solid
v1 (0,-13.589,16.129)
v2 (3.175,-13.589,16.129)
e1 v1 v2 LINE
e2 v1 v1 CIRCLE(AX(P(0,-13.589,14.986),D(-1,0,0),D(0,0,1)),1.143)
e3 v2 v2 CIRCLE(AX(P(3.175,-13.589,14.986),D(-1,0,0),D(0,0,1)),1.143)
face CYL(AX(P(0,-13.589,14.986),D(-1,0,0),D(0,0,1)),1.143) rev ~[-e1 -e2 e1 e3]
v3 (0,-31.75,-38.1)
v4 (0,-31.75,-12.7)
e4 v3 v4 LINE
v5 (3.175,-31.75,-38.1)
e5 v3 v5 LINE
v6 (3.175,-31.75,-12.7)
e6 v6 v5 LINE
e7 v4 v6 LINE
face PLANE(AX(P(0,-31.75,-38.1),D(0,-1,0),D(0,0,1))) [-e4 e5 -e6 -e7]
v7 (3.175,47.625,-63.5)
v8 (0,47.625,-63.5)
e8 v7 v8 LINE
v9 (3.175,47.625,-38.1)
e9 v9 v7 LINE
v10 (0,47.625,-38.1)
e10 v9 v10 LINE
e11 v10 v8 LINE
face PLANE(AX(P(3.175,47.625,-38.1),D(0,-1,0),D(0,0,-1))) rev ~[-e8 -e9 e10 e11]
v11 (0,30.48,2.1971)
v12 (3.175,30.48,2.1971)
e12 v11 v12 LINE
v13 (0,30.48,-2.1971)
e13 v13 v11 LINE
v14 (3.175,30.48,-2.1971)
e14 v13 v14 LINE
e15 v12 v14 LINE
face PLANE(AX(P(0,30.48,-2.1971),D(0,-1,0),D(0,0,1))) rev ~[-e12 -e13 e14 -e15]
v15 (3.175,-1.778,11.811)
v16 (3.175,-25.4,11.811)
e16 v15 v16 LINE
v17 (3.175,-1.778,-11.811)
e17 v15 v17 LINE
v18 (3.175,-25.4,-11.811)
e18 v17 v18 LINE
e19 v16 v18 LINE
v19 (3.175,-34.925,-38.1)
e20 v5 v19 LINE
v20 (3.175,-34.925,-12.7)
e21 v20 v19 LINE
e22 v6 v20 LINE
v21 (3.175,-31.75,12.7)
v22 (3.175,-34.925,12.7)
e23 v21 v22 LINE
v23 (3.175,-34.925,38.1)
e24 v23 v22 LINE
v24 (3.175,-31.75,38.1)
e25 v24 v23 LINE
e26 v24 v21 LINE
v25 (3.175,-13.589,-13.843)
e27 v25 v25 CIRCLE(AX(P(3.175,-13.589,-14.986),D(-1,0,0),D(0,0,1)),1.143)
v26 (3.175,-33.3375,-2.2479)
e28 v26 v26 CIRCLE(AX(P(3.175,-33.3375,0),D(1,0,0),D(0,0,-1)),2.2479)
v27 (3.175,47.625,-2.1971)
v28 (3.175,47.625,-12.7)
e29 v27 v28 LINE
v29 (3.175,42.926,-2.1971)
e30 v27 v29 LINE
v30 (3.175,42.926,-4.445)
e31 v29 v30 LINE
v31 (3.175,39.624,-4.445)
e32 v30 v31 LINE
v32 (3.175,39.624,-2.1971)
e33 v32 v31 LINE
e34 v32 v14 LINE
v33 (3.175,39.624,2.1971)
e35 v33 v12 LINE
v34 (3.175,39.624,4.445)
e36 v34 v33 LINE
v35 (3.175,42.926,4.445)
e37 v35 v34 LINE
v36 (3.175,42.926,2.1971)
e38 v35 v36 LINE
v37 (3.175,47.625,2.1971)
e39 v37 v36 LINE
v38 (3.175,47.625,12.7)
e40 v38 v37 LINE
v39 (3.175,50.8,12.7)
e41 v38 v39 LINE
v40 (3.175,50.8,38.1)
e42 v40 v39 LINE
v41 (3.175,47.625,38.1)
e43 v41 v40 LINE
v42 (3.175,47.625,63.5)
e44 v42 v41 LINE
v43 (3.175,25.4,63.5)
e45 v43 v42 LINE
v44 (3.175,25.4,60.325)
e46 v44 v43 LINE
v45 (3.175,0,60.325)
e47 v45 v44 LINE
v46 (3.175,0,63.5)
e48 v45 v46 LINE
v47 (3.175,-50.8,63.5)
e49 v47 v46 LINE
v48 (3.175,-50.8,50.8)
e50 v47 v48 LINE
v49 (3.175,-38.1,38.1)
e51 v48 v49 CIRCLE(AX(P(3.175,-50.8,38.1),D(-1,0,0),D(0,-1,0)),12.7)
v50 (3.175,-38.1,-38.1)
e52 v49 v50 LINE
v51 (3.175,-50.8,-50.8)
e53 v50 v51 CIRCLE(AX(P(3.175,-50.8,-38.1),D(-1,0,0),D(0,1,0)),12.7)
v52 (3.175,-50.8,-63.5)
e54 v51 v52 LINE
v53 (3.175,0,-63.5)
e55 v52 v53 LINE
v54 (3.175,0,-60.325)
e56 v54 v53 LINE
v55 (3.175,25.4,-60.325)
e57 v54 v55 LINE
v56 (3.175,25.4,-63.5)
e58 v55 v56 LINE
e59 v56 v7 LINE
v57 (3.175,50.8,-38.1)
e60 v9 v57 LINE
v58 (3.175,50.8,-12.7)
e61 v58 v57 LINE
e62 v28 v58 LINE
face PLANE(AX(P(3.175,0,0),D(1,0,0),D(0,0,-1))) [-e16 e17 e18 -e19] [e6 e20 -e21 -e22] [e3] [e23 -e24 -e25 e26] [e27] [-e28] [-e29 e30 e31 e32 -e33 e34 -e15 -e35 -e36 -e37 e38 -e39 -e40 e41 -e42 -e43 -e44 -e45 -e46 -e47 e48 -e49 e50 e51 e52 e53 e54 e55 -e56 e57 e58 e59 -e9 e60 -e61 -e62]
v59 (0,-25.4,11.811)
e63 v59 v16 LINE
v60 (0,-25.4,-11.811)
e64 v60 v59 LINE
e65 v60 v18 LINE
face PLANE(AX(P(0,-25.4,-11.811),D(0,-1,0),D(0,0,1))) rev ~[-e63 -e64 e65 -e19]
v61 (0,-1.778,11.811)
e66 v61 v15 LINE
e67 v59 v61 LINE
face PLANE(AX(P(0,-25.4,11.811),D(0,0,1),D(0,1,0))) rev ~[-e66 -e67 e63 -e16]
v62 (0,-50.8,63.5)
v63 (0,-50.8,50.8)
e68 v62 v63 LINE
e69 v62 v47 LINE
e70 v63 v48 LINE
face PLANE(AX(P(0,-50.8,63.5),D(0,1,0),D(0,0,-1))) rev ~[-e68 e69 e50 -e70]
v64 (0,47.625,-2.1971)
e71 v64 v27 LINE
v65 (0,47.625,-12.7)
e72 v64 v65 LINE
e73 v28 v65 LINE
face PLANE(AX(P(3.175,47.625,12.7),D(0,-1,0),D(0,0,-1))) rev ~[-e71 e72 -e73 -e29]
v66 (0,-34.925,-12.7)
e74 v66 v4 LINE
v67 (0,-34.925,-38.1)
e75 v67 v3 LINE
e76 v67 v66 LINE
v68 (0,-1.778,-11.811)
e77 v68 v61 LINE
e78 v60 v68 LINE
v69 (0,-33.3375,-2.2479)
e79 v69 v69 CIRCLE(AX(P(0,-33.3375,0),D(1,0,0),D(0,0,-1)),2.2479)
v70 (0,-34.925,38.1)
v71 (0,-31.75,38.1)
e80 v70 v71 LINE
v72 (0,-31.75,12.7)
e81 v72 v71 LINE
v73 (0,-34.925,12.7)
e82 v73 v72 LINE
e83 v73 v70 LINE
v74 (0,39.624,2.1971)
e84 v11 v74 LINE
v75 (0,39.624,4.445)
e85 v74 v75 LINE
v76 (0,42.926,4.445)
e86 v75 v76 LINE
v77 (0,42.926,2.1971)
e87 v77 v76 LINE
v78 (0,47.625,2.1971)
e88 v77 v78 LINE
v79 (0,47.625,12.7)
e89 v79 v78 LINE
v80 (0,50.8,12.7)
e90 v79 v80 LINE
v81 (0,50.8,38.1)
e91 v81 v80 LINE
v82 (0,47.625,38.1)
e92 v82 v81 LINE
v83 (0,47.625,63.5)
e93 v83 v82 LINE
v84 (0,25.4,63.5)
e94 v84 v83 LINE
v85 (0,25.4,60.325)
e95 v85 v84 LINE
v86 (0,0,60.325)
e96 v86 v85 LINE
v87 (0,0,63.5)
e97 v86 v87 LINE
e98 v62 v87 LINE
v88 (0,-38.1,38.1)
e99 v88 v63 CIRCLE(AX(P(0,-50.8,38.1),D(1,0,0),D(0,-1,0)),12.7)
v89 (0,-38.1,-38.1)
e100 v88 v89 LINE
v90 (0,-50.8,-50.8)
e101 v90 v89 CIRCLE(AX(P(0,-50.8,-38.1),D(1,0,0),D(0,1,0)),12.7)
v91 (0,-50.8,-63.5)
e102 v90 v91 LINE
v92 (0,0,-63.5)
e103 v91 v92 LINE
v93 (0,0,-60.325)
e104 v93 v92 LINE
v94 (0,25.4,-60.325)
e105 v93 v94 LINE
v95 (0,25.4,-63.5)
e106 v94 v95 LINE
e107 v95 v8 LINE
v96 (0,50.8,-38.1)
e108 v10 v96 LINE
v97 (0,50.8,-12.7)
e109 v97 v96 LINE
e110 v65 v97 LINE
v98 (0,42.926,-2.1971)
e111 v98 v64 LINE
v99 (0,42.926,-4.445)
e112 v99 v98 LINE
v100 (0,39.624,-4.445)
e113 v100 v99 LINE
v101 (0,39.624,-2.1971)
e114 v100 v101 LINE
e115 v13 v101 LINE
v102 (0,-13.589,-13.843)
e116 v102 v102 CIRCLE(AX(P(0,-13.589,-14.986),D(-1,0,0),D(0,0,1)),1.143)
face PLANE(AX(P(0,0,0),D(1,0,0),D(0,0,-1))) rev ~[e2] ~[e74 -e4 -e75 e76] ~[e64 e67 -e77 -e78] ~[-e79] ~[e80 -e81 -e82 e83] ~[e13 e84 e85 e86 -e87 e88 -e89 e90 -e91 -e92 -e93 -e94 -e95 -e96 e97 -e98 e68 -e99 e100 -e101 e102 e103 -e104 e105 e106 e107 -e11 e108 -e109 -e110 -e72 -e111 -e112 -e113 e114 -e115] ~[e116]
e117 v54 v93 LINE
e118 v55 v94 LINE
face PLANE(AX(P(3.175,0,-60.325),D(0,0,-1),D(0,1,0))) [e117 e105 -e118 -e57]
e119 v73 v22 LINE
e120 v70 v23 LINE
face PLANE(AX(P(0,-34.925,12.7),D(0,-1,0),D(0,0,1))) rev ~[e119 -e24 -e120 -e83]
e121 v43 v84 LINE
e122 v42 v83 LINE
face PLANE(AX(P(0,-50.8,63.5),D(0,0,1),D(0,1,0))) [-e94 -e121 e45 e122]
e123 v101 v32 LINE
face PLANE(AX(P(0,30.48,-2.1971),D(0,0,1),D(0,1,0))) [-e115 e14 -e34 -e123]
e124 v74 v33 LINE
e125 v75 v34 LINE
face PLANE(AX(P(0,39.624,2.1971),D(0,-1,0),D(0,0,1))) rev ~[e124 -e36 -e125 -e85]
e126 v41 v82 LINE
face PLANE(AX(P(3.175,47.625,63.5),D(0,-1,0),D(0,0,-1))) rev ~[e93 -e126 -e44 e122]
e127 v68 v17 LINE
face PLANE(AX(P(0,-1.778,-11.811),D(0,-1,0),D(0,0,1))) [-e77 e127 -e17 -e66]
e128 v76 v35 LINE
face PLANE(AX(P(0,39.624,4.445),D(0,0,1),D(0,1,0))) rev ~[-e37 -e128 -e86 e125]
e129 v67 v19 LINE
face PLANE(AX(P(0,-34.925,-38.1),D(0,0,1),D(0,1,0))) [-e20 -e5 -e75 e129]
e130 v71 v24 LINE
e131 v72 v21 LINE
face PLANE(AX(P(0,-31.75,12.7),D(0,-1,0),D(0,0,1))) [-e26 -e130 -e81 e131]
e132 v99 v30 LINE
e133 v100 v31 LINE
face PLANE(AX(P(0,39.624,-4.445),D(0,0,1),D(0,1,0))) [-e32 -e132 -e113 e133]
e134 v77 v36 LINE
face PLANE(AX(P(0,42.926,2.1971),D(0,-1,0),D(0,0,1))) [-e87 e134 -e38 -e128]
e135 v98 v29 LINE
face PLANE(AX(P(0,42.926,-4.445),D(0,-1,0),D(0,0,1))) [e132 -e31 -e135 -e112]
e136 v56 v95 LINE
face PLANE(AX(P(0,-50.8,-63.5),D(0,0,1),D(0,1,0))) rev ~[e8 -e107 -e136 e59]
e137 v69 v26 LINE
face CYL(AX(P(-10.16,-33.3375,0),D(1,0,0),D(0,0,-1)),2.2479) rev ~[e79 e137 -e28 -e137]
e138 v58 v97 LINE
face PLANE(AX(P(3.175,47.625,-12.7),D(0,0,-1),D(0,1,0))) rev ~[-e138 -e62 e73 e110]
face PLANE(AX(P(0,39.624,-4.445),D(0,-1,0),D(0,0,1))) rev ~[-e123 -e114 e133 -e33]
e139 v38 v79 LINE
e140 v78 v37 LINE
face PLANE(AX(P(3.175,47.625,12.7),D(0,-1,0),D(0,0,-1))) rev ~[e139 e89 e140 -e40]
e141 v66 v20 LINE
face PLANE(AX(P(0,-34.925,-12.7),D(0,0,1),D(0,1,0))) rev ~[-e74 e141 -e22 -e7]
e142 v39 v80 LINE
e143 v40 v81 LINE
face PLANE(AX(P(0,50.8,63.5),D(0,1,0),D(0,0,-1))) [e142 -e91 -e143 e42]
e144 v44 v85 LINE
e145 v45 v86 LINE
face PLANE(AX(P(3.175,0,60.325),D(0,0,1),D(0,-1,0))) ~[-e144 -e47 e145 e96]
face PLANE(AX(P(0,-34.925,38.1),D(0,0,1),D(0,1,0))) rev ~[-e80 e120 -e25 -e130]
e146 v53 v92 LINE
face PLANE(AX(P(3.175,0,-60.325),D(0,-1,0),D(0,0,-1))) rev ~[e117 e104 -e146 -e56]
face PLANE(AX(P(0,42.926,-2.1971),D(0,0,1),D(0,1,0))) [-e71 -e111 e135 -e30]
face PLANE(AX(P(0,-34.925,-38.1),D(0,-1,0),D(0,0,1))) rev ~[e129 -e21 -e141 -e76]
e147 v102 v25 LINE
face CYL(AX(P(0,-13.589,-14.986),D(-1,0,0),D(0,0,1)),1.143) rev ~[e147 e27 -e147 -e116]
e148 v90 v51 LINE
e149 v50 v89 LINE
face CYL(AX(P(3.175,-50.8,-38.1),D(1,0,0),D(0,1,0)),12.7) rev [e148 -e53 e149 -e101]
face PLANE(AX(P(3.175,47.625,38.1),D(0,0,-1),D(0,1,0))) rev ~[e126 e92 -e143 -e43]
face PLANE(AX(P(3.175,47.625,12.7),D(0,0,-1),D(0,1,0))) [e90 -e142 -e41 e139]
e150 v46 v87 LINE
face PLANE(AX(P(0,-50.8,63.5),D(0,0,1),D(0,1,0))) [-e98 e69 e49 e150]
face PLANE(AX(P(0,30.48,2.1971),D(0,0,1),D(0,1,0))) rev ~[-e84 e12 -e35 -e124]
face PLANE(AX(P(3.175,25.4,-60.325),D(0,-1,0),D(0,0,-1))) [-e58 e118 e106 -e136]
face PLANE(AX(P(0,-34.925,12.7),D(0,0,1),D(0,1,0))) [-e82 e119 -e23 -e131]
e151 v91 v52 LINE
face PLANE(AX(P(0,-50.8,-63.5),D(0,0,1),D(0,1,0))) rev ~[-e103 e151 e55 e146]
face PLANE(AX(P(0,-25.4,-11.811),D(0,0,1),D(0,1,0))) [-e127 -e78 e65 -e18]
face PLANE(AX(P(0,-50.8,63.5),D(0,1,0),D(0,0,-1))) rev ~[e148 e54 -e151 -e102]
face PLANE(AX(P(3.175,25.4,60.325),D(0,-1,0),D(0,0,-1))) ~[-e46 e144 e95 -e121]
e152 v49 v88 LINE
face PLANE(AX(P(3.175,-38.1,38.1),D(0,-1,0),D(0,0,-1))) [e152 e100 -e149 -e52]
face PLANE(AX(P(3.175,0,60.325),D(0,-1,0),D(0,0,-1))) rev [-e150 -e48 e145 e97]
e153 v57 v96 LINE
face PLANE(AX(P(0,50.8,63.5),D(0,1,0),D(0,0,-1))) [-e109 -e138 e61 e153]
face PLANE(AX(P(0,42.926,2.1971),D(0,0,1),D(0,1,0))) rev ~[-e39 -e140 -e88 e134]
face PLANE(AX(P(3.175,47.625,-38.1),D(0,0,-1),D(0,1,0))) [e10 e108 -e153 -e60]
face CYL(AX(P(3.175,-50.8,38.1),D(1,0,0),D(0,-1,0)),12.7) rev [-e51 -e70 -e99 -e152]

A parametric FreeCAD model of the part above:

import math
import FreeCAD as App
import Part
import Sketcher

V = App.Vector
Q = App.Units.Quantity


def add_polygon(sketch, points):
    """Adds a closed chain of lines whose ends are joined by coincident constraints."""
    first, n = sketch.GeometryCount, len(points)
    for a, b in zip(points, points[1:] + points[:1]):
        sketch.addGeometry(Part.LineSegment(App.Vector(*a, 0), App.Vector(*b, 0)), False)
    for i in range(n):
        sketch.addConstraint(Sketcher.Constraint("Coincident", first + i, 2, first + (i + 1) % n, 1))

doc = App.newDocument("Part")
body = doc.addObject("PartDesign::Body", "Body")

# Sketch on YZ plane
sketch1 = doc.addObject("Sketcher::SketchObject", "Sketch")
body.addObject(sketch1)
sketch1.AttachmentSupport = (doc.YZ_Plane, [""])
sketch1.MapMode = "FlatFace"
add_polygon(sketch1, [(51, 64), (-51, 64), (-51, -64), (51, -64)])  # lines 0-3
sketch1.addConstraint(Sketcher.Constraint("Horizontal", 0))
sketch1.addConstraint(Sketcher.Constraint("Vertical", 1))
sketch1.addConstraint(Sketcher.Constraint("Horizontal", 2))
sketch1.addConstraint(Sketcher.Constraint("Vertical", 3))
sketch1.addConstraint(Sketcher.Constraint("Symmetric", 0, 2, 2, 2, -1, 1))
sketch1.addConstraint(Sketcher.Constraint("DistanceX", 0, 2, 0, 1, Q("4 in")))
sketch1.addConstraint(Sketcher.Constraint("DistanceY", 1, 2, 1, 1, Q("5 in")))
pad1 = doc.addObject("PartDesign::Pad", "Pad")
body.addObject(pad1)
pad1.Profile = sketch1
pad1.Length = Q("0.125 in")

# Sketch on YZ plane
sketch2 = doc.addObject("Sketcher::SketchObject", "Sketch001")
body.addObject(sketch2)
sketch2.AttachmentSupport = (doc.YZ_Plane, [""])
sketch2.MapMode = "FlatFace"
sketch2.AttachmentOffset = App.Placement(V(0, 0, 0.125 * 25.4), App.Rotation())
add_polygon(sketch2, [(50.8, 63.5), (47.6, 63.5), (47.6, 38.1), (50.8, 38.1)])  # lines 0-3
sketch2.addConstraint(Sketcher.Constraint("Horizontal", 0))
sketch2.addConstraint(Sketcher.Constraint("Vertical", 1))
sketch2.addConstraint(Sketcher.Constraint("Horizontal", 2))
sketch2.addConstraint(Sketcher.Constraint("Vertical", 3))
sketch2.addConstraint(Sketcher.Constraint("DistanceY", 1, 2, 1, 1, Q("1 in")))
sketch2.addConstraint(Sketcher.Constraint("DistanceX", -1, 1, 2, 2, Q("2 in")))
sketch2.addConstraint(Sketcher.Constraint("DistanceY", -1, 1, 0, 2, Q("2.5 in")))
sketch2.addConstraint(Sketcher.Constraint("DistanceX", 0, 2, 0, 1, Q("0.125 in")))
pocket1 = doc.addObject("PartDesign::Pocket", "Pocket")
body.addObject(pocket1)
pocket1.Profile = sketch2
pocket1.Length = Q("0.25 in")
doc.recompute()

linearpattern = doc.addObject("PartDesign::LinearPattern", "LinearPattern")
body.addObject(linearpattern)
linearpattern.Originals = [pocket1]
linearpattern.Direction = (doc.Z_Axis, [""])
linearpattern.Mode = "offset"
linearpattern.Offset = Q("2 in")
linearpattern.Occurrences = 3
linearpattern.Reversed = True
body.Tip = linearpattern

# Sketch on YZ plane
sketch3 = doc.addObject("Sketcher::SketchObject", "Sketch002")
body.addObject(sketch3)
sketch3.AttachmentSupport = (doc.YZ_Plane, [""])
sketch3.MapMode = "FlatFace"
sketch3.AttachmentOffset = App.Placement(V(0, 0, 0.125 * 25.4), App.Rotation())
sketch3.addGeometry(Part.LineSegment(V(-38, -38, 0), V(-38, 38, 0)), False)
sketch3.addGeometry(Part.ArcOfCircle(Part.Circle(V(-51, 38, 0), V(0, 0, 1), 13), math.radians(0), math.radians(180)), False)
sketch3.addGeometry(Part.LineSegment(V(-64, 38, 0), V(-64, -38, 0)), False)
sketch3.addGeometry(Part.ArcOfCircle(Part.Circle(V(-51, -38, 0), V(0, 0, 1), 13), math.radians(180), math.radians(360)), False)
sketch3.addConstraint(Sketcher.Constraint("Tangent", 0, 2, 1, 1))
sketch3.addConstraint(Sketcher.Constraint("Tangent", 1, 2, 2, 1))
sketch3.addConstraint(Sketcher.Constraint("Tangent", 2, 2, 3, 1))
sketch3.addConstraint(Sketcher.Constraint("Tangent", 3, 2, 0, 1))
sketch3.addConstraint(Sketcher.Constraint("Vertical", 0))
sketch3.addConstraint(Sketcher.Constraint("Vertical", 2))
sketch3.addConstraint(Sketcher.Constraint("Radius", 1, Q("0.5 in")))
sketch3.addConstraint(Sketcher.Constraint("DistanceY", 0, 1, 0, 2, Q("3 in")))
sketch3.addConstraint(Sketcher.Constraint("DistanceX", 1, 3, -1, 1, Q("2 in")))
sketch3.addConstraint(Sketcher.Constraint("DistanceY", -1, 1, 1, 3, Q("1.5 in")))
pocket2 = doc.addObject("PartDesign::Pocket", "Pocket001")
body.addObject(pocket2)
pocket2.Profile = sketch3
pocket2.Length = Q("0.25 in")

# Sketch on YZ plane
sketch4 = doc.addObject("Sketcher::SketchObject", "Sketch003")
body.addObject(sketch4)
sketch4.AttachmentSupport = (doc.YZ_Plane, [""])
sketch4.MapMode = "FlatFace"
sketch4.AttachmentOffset = App.Placement(V(0, 0, 0.125 * 25.4), App.Rotation())
add_polygon(sketch4, [(25.4, -60.3), (0, -60.3), (0, -63.5), (25.4, -63.5)])  # lines 0-3
sketch4.addConstraint(Sketcher.Constraint("Horizontal", 0))
sketch4.addConstraint(Sketcher.Constraint("Vertical", 1))
sketch4.addConstraint(Sketcher.Constraint("Horizontal", 2))
sketch4.addConstraint(Sketcher.Constraint("Vertical", 3))
sketch4.addConstraint(Sketcher.Constraint("PointOnObject", 0, 2, -2))
sketch4.addConstraint(Sketcher.Constraint("DistanceX", 0, 2, 0, 1, Q("1 in")))
sketch4.addConstraint(Sketcher.Constraint("DistanceY", 1, 2, -1, 1, Q("2.5 in")))
sketch4.addConstraint(Sketcher.Constraint("DistanceY", 1, 2, 1, 1, Q("0.125 in")))
pocket3 = doc.addObject("PartDesign::Pocket", "Pocket002")
body.addObject(pocket3)
pocket3.Profile = sketch4
pocket3.Length = Q("0.25 in")

# Sketch on YZ plane
sketch5 = doc.addObject("Sketcher::SketchObject", "Sketch004")
body.addObject(sketch5)
sketch5.AttachmentSupport = (doc.YZ_Plane, [""])
sketch5.MapMode = "FlatFace"
add_polygon(sketch5, [(-31.8, -38.1), (-34.9, -38.1), (-34.9, -12.7), (-31.8, -12.7)])  # lines 0-3
sketch5.addConstraint(Sketcher.Constraint("Horizontal", 0))
sketch5.addConstraint(Sketcher.Constraint("Vertical", 1))
sketch5.addConstraint(Sketcher.Constraint("Horizontal", 2))
sketch5.addConstraint(Sketcher.Constraint("Vertical", 3))
sketch5.addConstraint(Sketcher.Constraint("DistanceY", 1, 1, 1, 2, Q("1 in")))
sketch5.addConstraint(Sketcher.Constraint("DistanceY", 0, 2, -1, 1, Q("1.5 in")))
sketch5.addConstraint(Sketcher.Constraint("DistanceX", 0, 2, 0, 1, Q("0.125 in")))
sketch5.addConstraint(Sketcher.Constraint("DistanceX", 2, 2, -1, 1, Q("1.25 in")))
pocket4 = doc.addObject("PartDesign::Pocket", "Pocket003")
body.addObject(pocket4)
pocket4.Profile = sketch5
pocket4.Length = Q("0.25 in")
pocket4.Reversed = True
doc.recompute()

linearpattern2 = doc.addObject("PartDesign::LinearPattern", "LinearPattern001")
body.addObject(linearpattern2)
linearpattern2.Originals = [pocket4]
linearpattern2.Direction = (doc.Z_Axis, [""])
linearpattern2.Mode = "offset"
linearpattern2.Offset = Q("2 in")
linearpattern2.Occurrences = 2
body.Tip = linearpattern2

# Sketch on YZ plane
sketch6 = doc.addObject("Sketcher::SketchObject", "Sketch005")
body.addObject(sketch6)
sketch6.AttachmentSupport = (doc.YZ_Plane, [""])
sketch6.MapMode = "FlatFace"
add_polygon(sketch6, [(39.6, -2.2), (30.5, -2.2), (30.5, 2.2), (39.6, 2.2), (39.6, 4.4), (42.9, 4.4), (42.9, 2.2), (47.6, 2.2), (47.6, -2.2), (42.9, -2.2), (42.9, -4.4), (39.6, -4.4)])  # lines 0-11
sketch6.addConstraint(Sketcher.Constraint("Horizontal", 0))
sketch6.addConstraint(Sketcher.Constraint("Vertical", 1))
sketch6.addConstraint(Sketcher.Constraint("Horizontal", 2))
sketch6.addConstraint(Sketcher.Constraint("Vertical", 3))
sketch6.addConstraint(Sketcher.Constraint("Horizontal", 4))
sketch6.addConstraint(Sketcher.Constraint("Vertical", 5))
sketch6.addConstraint(Sketcher.Constraint("Horizontal", 6))
sketch6.addConstraint(Sketcher.Constraint("Vertical", 7))
sketch6.addConstraint(Sketcher.Constraint("Horizontal", 8))
sketch6.addConstraint(Sketcher.Constraint("Vertical", 9))
sketch6.addConstraint(Sketcher.Constraint("Horizontal", 10))
sketch6.addConstraint(Sketcher.Constraint("Vertical", 11))
sketch6.addConstraint(Sketcher.Constraint("Symmetric", 5, 2, 8, 2, -1))
sketch6.addConstraint(Sketcher.Constraint("Symmetric", 3, 2, 10, 2, -1))
sketch6.addConstraint(Sketcher.Constraint("Horizontal", 2, 2, 5, 2))
sketch6.addConstraint(Sketcher.Constraint("Horizontal", 0, 2, 7, 2))
sketch6.addConstraint(Sketcher.Constraint("DistanceX", 0, 2, 0, 1, Q("0.36 in")))
sketch6.addConstraint(Sketcher.Constraint("DistanceX", 4, 1, 4, 2, Q("0.13 in")))
sketch6.addConstraint(Sketcher.Constraint("DistanceX", -1, 1, 0, 2, Q("1.2 in")))
sketch6.addConstraint(Sketcher.Constraint("DistanceX", 6, 1, 6, 2, Q("0.185 in")))
sketch6.addConstraint(Sketcher.Constraint("DistanceY", 1, 1, 1, 2, Q("0.173 in")))
sketch6.addConstraint(Sketcher.Constraint("DistanceY", 3, 1, 3, 2, Q("0.0885 in")))
pocket5 = doc.addObject("PartDesign::Pocket", "Pocket004")
body.addObject(pocket5)
pocket5.Profile = sketch6
pocket5.Length = Q("0.25 in")
pocket5.Reversed = True

# Sketch on YZ plane
sketch7 = doc.addObject("Sketcher::SketchObject", "Sketch006")
body.addObject(sketch7)
sketch7.AttachmentSupport = (doc.YZ_Plane, [""])
sketch7.MapMode = "FlatFace"
sketch7.addGeometry(Part.Circle(V(-33.3, 0, 0), V(0, 0, 1), 2.2), False)
sketch7.addConstraint(Sketcher.Constraint("PointOnObject", 0, 3, -1))
sketch7.addConstraint(Sketcher.Constraint("Diameter", 0, Q("0.177 in")))
sketch7.addConstraint(Sketcher.Constraint("DistanceX", 0, 3, -1, 1, Q("1.3125 in")))
doc.recompute()
hole = doc.addObject("PartDesign::Hole", "Hole")
body.addObject(hole)
hole.Profile = sketch7
hole.ThreadType = "None"
hole.Diameter = Q("0.177 in")
hole.DepthType = "Dimension"
hole.Depth = Q("0.4 in")
hole.DrillPoint = "Angled"
hole.DrillPointAngle = 118
hole.Reversed = True

# Sketch on YZ plane
sketch8 = doc.addObject("Sketcher::SketchObject", "Sketch007")
body.addObject(sketch8)
sketch8.AttachmentSupport = (doc.YZ_Plane, [""])
sketch8.MapMode = "FlatFace"
sketch8.addGeometry(Part.Circle(V(-13.6, -15, 0), V(0, 0, 1), 1.1), False)  # 0
sketch8.addGeometry(Part.Circle(V(-13.6, 15, 0), V(0, 0, 1), 1.1), False)  # 1
add_polygon(sketch8, [(-1.8, -11.8), (-25.4, -11.8), (-25.4, 11.8), (-1.8, 11.8)])  # lines 2-5
sketch8.addConstraint(Sketcher.Constraint("Horizontal", 2))
sketch8.addConstraint(Sketcher.Constraint("Vertical", 3))
sketch8.addConstraint(Sketcher.Constraint("Horizontal", 4))
sketch8.addConstraint(Sketcher.Constraint("Vertical", 5))
sketch8.addConstraint(Sketcher.Constraint("Equal", 0, 1))
sketch8.addConstraint(Sketcher.Constraint("Symmetric", 0, 3, 1, 3, -1))
sketch8.addConstraint(Sketcher.Constraint("Equal", 4, 3))
sketch8.addConstraint(Sketcher.Constraint("Diameter", 0, Q("0.09 in")))
sketch8.addConstraint(Sketcher.Constraint("DistanceX", 2, 2, -1, 1, Q("1 in")))
sketch8.addConstraint(Sketcher.Constraint("DistanceX", 2, 2, 2, 1, Q("0.93 in")))
sketch8.addConstraint(Sketcher.Constraint("DistanceY", 0, 3, -1, 1, Q("0.59 in")))
sketch8.addConstraint(Sketcher.Constraint("DistanceX", 0, 3, -1, 1, Q("0.535 in")))
sketch8.addConstraint(Sketcher.Constraint("DistanceY", 2, 2, -1, 1, Q("0.465 in")))
pocket6 = doc.addObject("PartDesign::Pocket", "Pocket005")
body.addObject(pocket6)
pocket6.Profile = sketch8
pocket6.Length = Q("0.4 in")
pocket6.Reversed = True
doc.recompute()

mirrored = doc.addObject("PartDesign::Mirrored", "Mirrored")
body.addObject(mirrored)
mirrored.Originals = [pocket3]
mirrored.MirrorPlane = (doc.XY_Plane, [""])
body.Tip = mirrored

doc.recompute()
